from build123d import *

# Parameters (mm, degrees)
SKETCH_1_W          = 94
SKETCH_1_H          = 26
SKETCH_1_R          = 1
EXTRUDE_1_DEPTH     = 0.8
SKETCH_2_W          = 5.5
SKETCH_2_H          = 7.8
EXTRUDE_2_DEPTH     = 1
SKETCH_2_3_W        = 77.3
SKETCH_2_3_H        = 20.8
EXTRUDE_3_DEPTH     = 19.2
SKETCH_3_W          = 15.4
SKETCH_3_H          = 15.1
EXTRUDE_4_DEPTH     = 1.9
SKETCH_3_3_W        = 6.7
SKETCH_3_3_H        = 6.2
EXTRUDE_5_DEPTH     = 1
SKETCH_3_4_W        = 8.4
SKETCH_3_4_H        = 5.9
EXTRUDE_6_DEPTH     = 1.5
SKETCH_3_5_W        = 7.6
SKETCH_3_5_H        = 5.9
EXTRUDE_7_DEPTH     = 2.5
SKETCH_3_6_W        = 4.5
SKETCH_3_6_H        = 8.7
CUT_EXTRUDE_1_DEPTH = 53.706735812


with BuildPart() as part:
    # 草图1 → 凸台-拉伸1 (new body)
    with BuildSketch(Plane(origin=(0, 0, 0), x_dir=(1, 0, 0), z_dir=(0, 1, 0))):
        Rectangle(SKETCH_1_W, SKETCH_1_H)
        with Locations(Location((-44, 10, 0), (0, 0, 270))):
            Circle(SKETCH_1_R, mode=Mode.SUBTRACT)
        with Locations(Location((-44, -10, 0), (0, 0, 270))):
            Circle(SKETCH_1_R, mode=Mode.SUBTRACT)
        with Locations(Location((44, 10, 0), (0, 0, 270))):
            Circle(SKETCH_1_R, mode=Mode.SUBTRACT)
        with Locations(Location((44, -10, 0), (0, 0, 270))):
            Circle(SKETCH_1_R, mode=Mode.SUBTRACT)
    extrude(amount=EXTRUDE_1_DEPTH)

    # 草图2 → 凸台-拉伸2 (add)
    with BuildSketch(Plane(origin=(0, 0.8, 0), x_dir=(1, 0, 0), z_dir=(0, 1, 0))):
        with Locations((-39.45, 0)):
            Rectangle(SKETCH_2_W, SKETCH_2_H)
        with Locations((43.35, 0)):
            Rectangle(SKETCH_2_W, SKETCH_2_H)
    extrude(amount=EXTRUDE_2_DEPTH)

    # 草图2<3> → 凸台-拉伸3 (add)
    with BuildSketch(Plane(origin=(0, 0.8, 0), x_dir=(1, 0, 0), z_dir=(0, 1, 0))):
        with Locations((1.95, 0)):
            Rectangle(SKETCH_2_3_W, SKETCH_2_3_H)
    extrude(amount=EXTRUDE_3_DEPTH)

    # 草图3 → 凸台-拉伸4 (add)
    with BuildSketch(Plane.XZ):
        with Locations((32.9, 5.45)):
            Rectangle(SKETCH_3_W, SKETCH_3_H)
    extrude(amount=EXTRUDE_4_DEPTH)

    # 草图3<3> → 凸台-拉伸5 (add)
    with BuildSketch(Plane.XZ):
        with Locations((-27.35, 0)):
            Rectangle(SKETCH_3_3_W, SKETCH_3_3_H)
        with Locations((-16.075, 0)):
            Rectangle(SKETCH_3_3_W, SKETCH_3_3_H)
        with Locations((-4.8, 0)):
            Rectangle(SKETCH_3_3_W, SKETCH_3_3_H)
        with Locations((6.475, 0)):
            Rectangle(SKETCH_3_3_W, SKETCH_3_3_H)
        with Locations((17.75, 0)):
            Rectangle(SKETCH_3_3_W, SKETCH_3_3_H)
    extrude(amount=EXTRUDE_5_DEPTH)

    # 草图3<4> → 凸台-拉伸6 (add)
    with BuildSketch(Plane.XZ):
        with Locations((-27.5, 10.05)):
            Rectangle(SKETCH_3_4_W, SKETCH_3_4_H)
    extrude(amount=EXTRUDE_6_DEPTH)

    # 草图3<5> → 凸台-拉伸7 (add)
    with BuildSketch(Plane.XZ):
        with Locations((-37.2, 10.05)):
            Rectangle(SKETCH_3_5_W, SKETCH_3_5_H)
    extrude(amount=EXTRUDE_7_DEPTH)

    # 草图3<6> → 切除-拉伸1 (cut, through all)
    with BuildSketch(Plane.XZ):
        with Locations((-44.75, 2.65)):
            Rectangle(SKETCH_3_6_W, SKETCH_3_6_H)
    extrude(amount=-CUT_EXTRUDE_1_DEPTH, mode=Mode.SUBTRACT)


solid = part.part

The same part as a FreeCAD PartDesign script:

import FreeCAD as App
import Part
import Sketcher
from FreeCAD import Vector
Q = App.Units.Quantity

doc = App.newDocument("Part")
body = doc.addObject("PartDesign::Body", "Body")

# Sketch on XZ plane
sketch1 = doc.addObject("Sketcher::SketchObject", "Sketch")
body.addObject(sketch1)
sketch1.AttachmentSupport = (doc.XZ_Plane, [""])
sketch1.MapMode = "FlatFace"
sketch1.addGeometry([
    Part.LineSegment(Vector(-47, -13, 0), Vector(-47, 13, 0)),  # 0
    Part.LineSegment(Vector(-47, 13, 0), Vector(47, 13, 0)),  # 1
    Part.LineSegment(Vector(47, 13, 0), Vector(47, -13, 0)),  # 2
    Part.LineSegment(Vector(47, -13, 0), Vector(-47, -13, 0)),  # 3
    Part.Circle(Vector(-44, 10, 0), Vector(0, 0, 1), 1),  # 4
    Part.Circle(Vector(44, 10, 0), Vector(0, 0, 1), 1),  # 5
    Part.Circle(Vector(-44, -10, 0), Vector(0, 0, 1), 1),  # 6
    Part.Circle(Vector(44, -10, 0), Vector(0, 0, 1), 1),  # 7
], False)
sketch1.addConstraint([
    Sketcher.Constraint("Coincident", 0, 2, 1, 1),
    Sketcher.Constraint("Coincident", 1, 2, 2, 1),
    Sketcher.Constraint("Coincident", 2, 2, 3, 1),
    Sketcher.Constraint("Coincident", 3, 2, 0, 1),
    Sketcher.Constraint("Vertical", 0),
    Sketcher.Constraint("Horizontal", 1),
    Sketcher.Constraint("Vertical", 2),
    Sketcher.Constraint("Horizontal", 3),
    Sketcher.Constraint("Equal", 4, 5),
    Sketcher.Constraint("Equal", 5, 6),
    Sketcher.Constraint("Equal", 6, 7),
    Sketcher.Constraint("Symmetric", 5, 3, 6, 3, -1, 1),
    Sketcher.Constraint("Symmetric", 4, 3, 7, 3, -1, 1),
    Sketcher.Constraint("Symmetric", 0, 2, 2, 2, -1, 1),
    Sketcher.Constraint("Symmetric", 4, 3, 5, 3, -2),
    Sketcher.Constraint("Diameter", 4, Q("2 mm")),
    Sketcher.Constraint("DistanceX", 1, 1, 1, 2, Q("94 mm")),
    Sketcher.Constraint("DistanceY", 0, 1, 0, 2, Q("26 mm")),
    Sketcher.Constraint("DistanceX", 4, 3, -1, 1, Q("44 mm")),
    Sketcher.Constraint("DistanceY", -1, 1, 4, 3, Q("10 mm")),
])
pad1 = doc.addObject("PartDesign::Pad", "Pad")
body.addObject(pad1)
pad1.Profile = sketch1
pad1.Length = 0.8
pad1.Reversed = True

# Sketch on XZ plane
sketch2 = doc.addObject("Sketcher::SketchObject", "Sketch001")
body.addObject(sketch2)
sketch2.AttachmentSupport = (doc.XZ_Plane, [""])
sketch2.MapMode = "FlatFace"
sketch2.AttachmentOffset = App.Placement(Vector(0, 0, -0.8), App.Rotation())
sketch2.addGeometry([
    Part.LineSegment(Vector(-42, -4, 0), Vector(-42, 4, 0)),  # 0
    Part.LineSegment(Vector(-42, 4, 0), Vector(-37, 4, 0)),  # 1
    Part.LineSegment(Vector(-37, 4, 0), Vector(-37, -4, 0)),  # 2
    Part.LineSegment(Vector(-37, -4, 0), Vector(-42, -4, 0)),  # 3
    Part.LineSegment(Vector(41, -4, 0), Vector(41, 4, 0)),  # 4
    Part.LineSegment(Vector(41, 4, 0), Vector(46, 4, 0)),  # 5
    Part.LineSegment(Vector(46, 4, 0), Vector(46, -4, 0)),  # 6
    Part.LineSegment(Vector(46, -4, 0), Vector(41, -4, 0)),  # 7
], False)
sketch2.addConstraint([
    Sketcher.Constraint("Coincident", 0, 2, 1, 1),
    Sketcher.Constraint("Coincident", 1, 2, 2, 1),
    Sketcher.Constraint("Coincident", 2, 2, 3, 1),
    Sketcher.Constraint("Coincident", 3, 2, 0, 1),
    Sketcher.Constraint("Coincident", 4, 2, 5, 1),
    Sketcher.Constraint("Coincident", 5, 2, 6, 1),
    Sketcher.Constraint("Coincident", 6, 2, 7, 1),
    Sketcher.Constraint("Coincident", 7, 2, 4, 1),
    Sketcher.Constraint("Vertical", 0),
    Sketcher.Constraint("Horizontal", 1),
    Sketcher.Constraint("Vertical", 2),
    Sketcher.Constraint("Horizontal", 3),
    Sketcher.Constraint("Vertical", 4),
    Sketcher.Constraint("Horizontal", 5),
    Sketcher.Constraint("Vertical", 6),
    Sketcher.Constraint("Horizontal", 7),
    Sketcher.Constraint("Horizontal", 1, 2, 4, 2),
    Sketcher.Constraint("Horizontal", 3, 2, 6, 2),
    Sketcher.Constraint("Equal", 3, 5),
    Sketcher.Constraint("DistanceX", 1, 1, 1, 2, Q("5.5 mm")),
    Sketcher.Constraint("DistanceY", 0, 1, 0, 2, Q("7.8 mm")),
    Sketcher.Constraint("DistanceX", 0, 2, -1, 1, Q("42.2 mm")),
    Sketcher.Constraint("DistanceY", -1, 1, 0, 2, Q("3.9 mm")),
    Sketcher.Constraint("DistanceX", -1, 1, 4, 2, Q("40.6 mm")),
])
pad2 = doc.addObject("PartDesign::Pad", "Pad001")
body.addObject(pad2)
pad2.Profile = sketch2
pad2.Length = 1
pad2.Reversed = True

# Sketch on XZ plane
sketch3 = doc.addObject("Sketcher::SketchObject", "Sketch002")
body.addObject(sketch3)
sketch3.AttachmentSupport = (doc.XZ_Plane, [""])
sketch3.MapMode = "FlatFace"
sketch3.AttachmentOffset = App.Placement(Vector(0, 0, -0.8), App.Rotation())
sketch3.addGeometry([
    Part.LineSegment(Vector(-37, -10, 0), Vector(-37, 10, 0)),
    Part.LineSegment(Vector(-37, 10, 0), Vector(41, 10, 0)),
    Part.LineSegment(Vector(41, 10, 0), Vector(41, -10, 0)),
    Part.LineSegment(Vector(41, -10, 0), Vector(-37, -10, 0)),
], False)
sketch3.addConstraint([
    Sketcher.Constraint("Coincident", 0, 2, 1, 1),
    Sketcher.Constraint("Coincident", 1, 2, 2, 1),
    Sketcher.Constraint("Coincident", 2, 2, 3, 1),
    Sketcher.Constraint("Coincident", 3, 2, 0, 1),
    Sketcher.Constraint("Vertical", 0),
    Sketcher.Constraint("Horizontal", 1),
    Sketcher.Constraint("Vertical", 2),
    Sketcher.Constraint("Horizontal", 3),
    Sketcher.Constraint("DistanceX", 1, 1, 1, 2, Q("77.3 mm")),
    Sketcher.Constraint("DistanceY", 0, 1, 0, 2, Q("20.8 mm")),
    Sketcher.Constraint("DistanceX", 0, 2, -1, 1, Q("36.7 mm")),
    Sketcher.Constraint("DistanceY", -1, 1, 0, 2, Q("10.4 mm")),
])
pad3 = doc.addObject("PartDesign::Pad", "Pad002")
body.addObject(pad3)
pad3.Profile = sketch3
pad3.Length = 19.2
pad3.Reversed = True

# Sketch on XZ plane
sketch4 = doc.addObject("Sketcher::SketchObject", "Sketch003")
body.addObject(sketch4)
sketch4.AttachmentSupport = (doc.XZ_Plane, [""])
sketch4.MapMode = "FlatFace"
sketch4.addGeometry([
    Part.LineSegment(Vector(25, 13, 0), Vector(25, -2, 0)),
    Part.LineSegment(Vector(25, -2, 0), Vector(41, -2, 0)),
    Part.LineSegment(Vector(41, -2, 0), Vector(41, 13, 0)),
    Part.LineSegment(Vector(41, 13, 0), Vector(25, 13, 0)),
], False)
sketch4.addConstraint([
    Sketcher.Constraint("Coincident", 0, 2, 1, 1),
    Sketcher.Constraint("Coincident", 1, 2, 2, 1),
    Sketcher.Constraint("Coincident", 2, 2, 3, 1),
    Sketcher.Constraint("Coincident", 3, 2, 0, 1),
    Sketcher.Constraint("Vertical", 0),
    Sketcher.Constraint("Horizontal", 1),
    Sketcher.Constraint("Vertical", 2),
    Sketcher.Constraint("Horizontal", 3),
    Sketcher.Constraint("DistanceX", 1, 1, 1, 2, Q("15.4 mm")),
    Sketcher.Constraint("DistanceY", 0, 2, 0, 1, Q("15.1 mm")),
    Sketcher.Constraint("DistanceY", -1, 1, 2, 2, Q("13 mm")),
    Sketcher.Constraint("DistanceX", -1, 1, 0, 2, Q("25.2 mm")),
])
pad4 = doc.addObject("PartDesign::Pad", "Pad003")
body.addObject(pad4)
pad4.Profile = sketch4
pad4.Length = 1.9

# Sketch on XZ plane
sketch5 = doc.addObject("Sketcher::SketchObject", "Sketch004")
body.addObject(sketch5)
sketch5.AttachmentSupport = (doc.XZ_Plane, [""])
sketch5.MapMode = "FlatFace"
sketch5.addGeometry([
    Part.LineSegment(Vector(-31, 3, 0), Vector(-31, -3, 0)),  # 0
    Part.LineSegment(Vector(-31, -3, 0), Vector(-24, -3, 0)),  # 1
    Part.LineSegment(Vector(-24, -3, 0), Vector(-24, 3, 0)),  # 2
    Part.LineSegment(Vector(-24, 3, 0), Vector(-31, 3, 0)),  # 3
    Part.LineSegment(Vector(-19, 3, 0), Vector(-19, -3, 0)),  # 4
    Part.LineSegment(Vector(-19, -3, 0), Vector(-13, -3, 0)),  # 5
    Part.LineSegment(Vector(-13, -3, 0), Vector(-13, 3, 0)),  # 6
    Part.LineSegment(Vector(-13, 3, 0), Vector(-19, 3, 0)),  # 7
    Part.LineSegment(Vector(-8, 3, 0), Vector(-8, -3, 0)),  # 8
    Part.LineSegment(Vector(-8, -3, 0), Vector(-1, -3, 0)),  # 9
    Part.LineSegment(Vector(-1, -3, 0), Vector(-1, 3, 0)),  # 10
    Part.LineSegment(Vector(-1, 3, 0), Vector(-8, 3, 0)),  # 11
    Part.LineSegment(Vector(3, 3, 0), Vector(3, -3, 0)),  # 12
    Part.LineSegment(Vector(3, -3, 0), Vector(10, -3, 0)),  # 13
    Part.LineSegment(Vector(10, -3, 0), Vector(10, 3, 0)),  # 14
    Part.LineSegment(Vector(10, 3, 0), Vector(3, 3, 0)),  # 15
    Part.LineSegment(Vector(14, 3, 0), Vector(14, -3, 0)),  # 16
    Part.LineSegment(Vector(14, -3, 0), Vector(21, -3, 0)),  # 17
    Part.LineSegment(Vector(21, -3, 0), Vector(21, 3, 0)),  # 18
    Part.LineSegment(Vector(21, 3, 0), Vector(14, 3, 0)),  # 19
], False)
sketch5.addConstraint([
    Sketcher.Constraint("Coincident", 0, 2, 1, 1),
    Sketcher.Constraint("Coincident", 1, 2, 2, 1),
    Sketcher.Constraint("Coincident", 2, 2, 3, 1),
    Sketcher.Constraint("Coincident", 3, 2, 0, 1),
    Sketcher.Constraint("Coincident", 4, 2, 5, 1),
    Sketcher.Constraint("Coincident", 5, 2, 6, 1),
    Sketcher.Constraint("Coincident", 6, 2, 7, 1),
    Sketcher.Constraint("Coincident", 7, 2, 4, 1),
    Sketcher.Constraint("Coincident", 8, 2, 9, 1),
    Sketcher.Constraint("Coincident", 9, 2, 10, 1),
    Sketcher.Constraint("Coincident", 10, 2, 11, 1),
    Sketcher.Constraint("Coincident", 11, 2, 8, 1),
    Sketcher.Constraint("Coincident", 12, 2, 13, 1),
    Sketcher.Constraint("Coincident", 13, 2, 14, 1),
    Sketcher.Constraint("Coincident", 14, 2, 15, 1),
    Sketcher.Constraint("Coincident", 15, 2, 12, 1),
    Sketcher.Constraint("Coincident", 16, 2, 17, 1),
    Sketcher.Constraint("Coincident", 17, 2, 18, 1),
    Sketcher.Constraint("Coincident", 18, 2, 19, 1),
    Sketcher.Constraint("Coincident", 19, 2, 16, 1),
    Sketcher.Constraint("Vertical", 0),
    Sketcher.Constraint("Horizontal", 1),
    Sketcher.Constraint("Vertical", 2),
    Sketcher.Constraint("Horizontal", 3),
    Sketcher.Constraint("Vertical", 4),
    Sketcher.Constraint("Horizontal", 5),
    Sketcher.Constraint("Vertical", 6),
    Sketcher.Constraint("Horizontal", 7),
    Sketcher.Constraint("Vertical", 8),
    Sketcher.Constraint("Horizontal", 9),
    Sketcher.Constraint("Vertical", 10),
    Sketcher.Constraint("Horizontal", 11),
    Sketcher.Constraint("Vertical", 12),
    Sketcher.Constraint("Horizontal", 13),
    Sketcher.Constraint("Vertical", 14),
    Sketcher.Constraint("Horizontal", 15),
    Sketcher.Constraint("Vertical", 16),
    Sketcher.Constraint("Horizontal", 17),
    Sketcher.Constraint("Vertical", 18),
    Sketcher.Constraint("Horizontal", 19),
    Sketcher.Constraint("Horizontal", 1, 2, 4, 2),
    Sketcher.Constraint("Horizontal", 3, 2, 6, 2),
    Sketcher.Constraint("Horizontal", 5, 2, 8, 2),
    Sketcher.Constraint("Horizontal", 7, 2, 10, 2),
    Sketcher.Constraint("Horizontal", 9, 2, 12, 2),
    Sketcher.Constraint("Horizontal", 11, 2, 14, 2),
    Sketcher.Constraint("Horizontal", 13, 2, 16, 2),
    Sketcher.Constraint("Horizontal", 15, 2, 18, 2),
    Sketcher.Constraint("Equal", 3, 5),
    Sketcher.Constraint("Equal", 7, 9),
    Sketcher.Constraint("Equal", 11, 13),
    Sketcher.Constraint("Equal", 15, 17),
    Sketcher.Constraint("DistanceX", 1, 1, 1, 2, Q("6.7 mm")),
    Sketcher.Constraint("DistanceY", 0, 2, 0, 1, Q("6.2 mm")),
    Sketcher.Constraint("DistanceX", 1, 2, -1, 1, Q("24 mm")),
    Sketcher.Constraint("DistanceY", 0, 2, -1, 1, Q("3.1 mm")),
    Sketcher.Constraint("DistanceX", -1, 1, 16, 2, Q("14.4 mm")),
    Sketcher.Constraint("DistanceX", 8, 2, -1, 1, Q("8.15 mm")),
    Sketcher.Constraint("DistanceX", 5, 2, 12, 2, Q("15.85 mm")),
    Sketcher.Constraint("DistanceX", 4, 2, -1, 1, Q("19.425 mm")),
])
pad5 = doc.addObject("PartDesign::Pad", "Pad004")
body.addObject(pad5)
pad5.Profile = sketch5
pad5.Length = 1

# Sketch on XZ plane
sketch6 = doc.addObject("Sketcher::SketchObject", "Sketch005")
body.addObject(sketch6)
sketch6.AttachmentSupport = (doc.XZ_Plane, [""])
sketch6.MapMode = "FlatFace"
sketch6.addGeometry([
    Part.LineSegment(Vector(-32, 13, 0), Vector(-32, 7, 0)),
    Part.LineSegment(Vector(-32, 7, 0), Vector(-23, 7, 0)),
    Part.LineSegment(Vector(-23, 7, 0), Vector(-23, 13, 0)),
    Part.LineSegment(Vector(-23, 13, 0), Vector(-32, 13, 0)),
], False)
sketch6.addConstraint([
    Sketcher.Constraint("Coincident", 0, 2, 1, 1),
    Sketcher.Constraint("Coincident", 1, 2, 2, 1),
    Sketcher.Constraint("Coincident", 2, 2, 3, 1),
    Sketcher.Constraint("Coincident", 3, 2, 0, 1),
    Sketcher.Constraint("Vertical", 0),
    Sketcher.Constraint("Horizontal", 1),
    Sketcher.Constraint("Vertical", 2),
    Sketcher.Constraint("Horizontal", 3),
    Sketcher.Constraint("DistanceX", 1, 1, 1, 2, Q("8.4 mm")),
    Sketcher.Constraint("DistanceY", 0, 2, 0, 1, Q("5.9 mm")),
    Sketcher.Constraint("DistanceY", -1, 1, 2, 2, Q("13 mm")),
    Sketcher.Constraint("DistanceX", 0, 2, -1, 1, Q("31.7 mm")),
])
pad6 = doc.addObject("PartDesign::Pad", "Pad005")
body.addObject(pad6)
pad6.Profile = sketch6
pad6.Length = 1.5

# Sketch on XZ plane
sketch7 = doc.addObject("Sketcher::SketchObject", "Sketch006")
body.addObject(sketch7)
sketch7.AttachmentSupport = (doc.XZ_Plane, [""])
sketch7.MapMode = "FlatFace"
sketch7.addGeometry([
    Part.LineSegment(Vector(-41, 13, 0), Vector(-41, 7, 0)),
    Part.LineSegment(Vector(-41, 7, 0), Vector(-33, 7, 0)),
    Part.LineSegment(Vector(-33, 7, 0), Vector(-33, 13, 0)),
    Part.LineSegment(Vector(-33, 13, 0), Vector(-41, 13, 0)),
], False)
sketch7.addConstraint([
    Sketcher.Constraint("Coincident", 0, 2, 1, 1),
    Sketcher.Constraint("Coincident", 1, 2, 2, 1),
    Sketcher.Constraint("Coincident", 2, 2, 3, 1),
    Sketcher.Constraint("Coincident", 3, 2, 0, 1),
    Sketcher.Constraint("Vertical", 0),
    Sketcher.Constraint("Horizontal", 1),
    Sketcher.Constraint("Vertical", 2),
    Sketcher.Constraint("Horizontal", 3),
    Sketcher.Constraint("DistanceX", 1, 1, 1, 2, Q("7.6 mm")),
    Sketcher.Constraint("DistanceY", 0, 2, 0, 1, Q("5.9 mm")),
    Sketcher.Constraint("DistanceX", 0, 2, -1, 1, Q("41 mm")),
    Sketcher.Constraint("DistanceY", -1, 1, 2, 2, Q("13 mm")),
])
pad7 = doc.addObject("PartDesign::Pad", "Pad006")
body.addObject(pad7)
pad7.Profile = sketch7
pad7.Length = 2.5

# Sketch on XZ plane
sketch8 = doc.addObject("Sketcher::SketchObject", "Sketch007")
body.addObject(sketch8)
sketch8.AttachmentSupport = (doc.XZ_Plane, [""])
sketch8.MapMode = "FlatFace"
sketch8.addGeometry([
    Part.LineSegment(Vector(-47, 7, 0), Vector(-47, -1.7, 0)),
    Part.LineSegment(Vector(-47, -1.7, 0), Vector(-42.5, -1.7, 0)),
    Part.LineSegment(Vector(-42.5, -1.7, 0), Vector(-42.5, 7, 0)),
    Part.LineSegment(Vector(-42.5, 7, 0), Vector(-47, 7, 0)),
], False)
sketch8.addConstraint([
    Sketcher.Constraint("Coincident", 0, 2, 1, 1),
    Sketcher.Constraint("Coincident", 1, 2, 2, 1),
    Sketcher.Constraint("Coincident", 2, 2, 3, 1),
    Sketcher.Constraint("Coincident", 3, 2, 0, 1),
    Sketcher.Constraint("Vertical", 0),
    Sketcher.Constraint("Horizontal", 1),
    Sketcher.Constraint("Vertical", 2),
    Sketcher.Constraint("Horizontal", 3),
    Sketcher.Constraint("DistanceX", 1, 1, 1, 2, Q("4.5 mm")),
    Sketcher.Constraint("DistanceY", 0, 2, 0, 1, Q("8.7 mm")),
    Sketcher.Constraint("DistanceX", 0, 2, -1, 1, Q("47 mm")),
    Sketcher.Constraint("DistanceY", -1, 1, 2, 2, Q("7 mm")),
])
pocket1 = doc.addObject("PartDesign::Pocket", "Pocket")
body.addObject(pocket1)
pocket1.Profile = sketch8
pocket1.Type = "ThroughAll"

doc.recompute()
